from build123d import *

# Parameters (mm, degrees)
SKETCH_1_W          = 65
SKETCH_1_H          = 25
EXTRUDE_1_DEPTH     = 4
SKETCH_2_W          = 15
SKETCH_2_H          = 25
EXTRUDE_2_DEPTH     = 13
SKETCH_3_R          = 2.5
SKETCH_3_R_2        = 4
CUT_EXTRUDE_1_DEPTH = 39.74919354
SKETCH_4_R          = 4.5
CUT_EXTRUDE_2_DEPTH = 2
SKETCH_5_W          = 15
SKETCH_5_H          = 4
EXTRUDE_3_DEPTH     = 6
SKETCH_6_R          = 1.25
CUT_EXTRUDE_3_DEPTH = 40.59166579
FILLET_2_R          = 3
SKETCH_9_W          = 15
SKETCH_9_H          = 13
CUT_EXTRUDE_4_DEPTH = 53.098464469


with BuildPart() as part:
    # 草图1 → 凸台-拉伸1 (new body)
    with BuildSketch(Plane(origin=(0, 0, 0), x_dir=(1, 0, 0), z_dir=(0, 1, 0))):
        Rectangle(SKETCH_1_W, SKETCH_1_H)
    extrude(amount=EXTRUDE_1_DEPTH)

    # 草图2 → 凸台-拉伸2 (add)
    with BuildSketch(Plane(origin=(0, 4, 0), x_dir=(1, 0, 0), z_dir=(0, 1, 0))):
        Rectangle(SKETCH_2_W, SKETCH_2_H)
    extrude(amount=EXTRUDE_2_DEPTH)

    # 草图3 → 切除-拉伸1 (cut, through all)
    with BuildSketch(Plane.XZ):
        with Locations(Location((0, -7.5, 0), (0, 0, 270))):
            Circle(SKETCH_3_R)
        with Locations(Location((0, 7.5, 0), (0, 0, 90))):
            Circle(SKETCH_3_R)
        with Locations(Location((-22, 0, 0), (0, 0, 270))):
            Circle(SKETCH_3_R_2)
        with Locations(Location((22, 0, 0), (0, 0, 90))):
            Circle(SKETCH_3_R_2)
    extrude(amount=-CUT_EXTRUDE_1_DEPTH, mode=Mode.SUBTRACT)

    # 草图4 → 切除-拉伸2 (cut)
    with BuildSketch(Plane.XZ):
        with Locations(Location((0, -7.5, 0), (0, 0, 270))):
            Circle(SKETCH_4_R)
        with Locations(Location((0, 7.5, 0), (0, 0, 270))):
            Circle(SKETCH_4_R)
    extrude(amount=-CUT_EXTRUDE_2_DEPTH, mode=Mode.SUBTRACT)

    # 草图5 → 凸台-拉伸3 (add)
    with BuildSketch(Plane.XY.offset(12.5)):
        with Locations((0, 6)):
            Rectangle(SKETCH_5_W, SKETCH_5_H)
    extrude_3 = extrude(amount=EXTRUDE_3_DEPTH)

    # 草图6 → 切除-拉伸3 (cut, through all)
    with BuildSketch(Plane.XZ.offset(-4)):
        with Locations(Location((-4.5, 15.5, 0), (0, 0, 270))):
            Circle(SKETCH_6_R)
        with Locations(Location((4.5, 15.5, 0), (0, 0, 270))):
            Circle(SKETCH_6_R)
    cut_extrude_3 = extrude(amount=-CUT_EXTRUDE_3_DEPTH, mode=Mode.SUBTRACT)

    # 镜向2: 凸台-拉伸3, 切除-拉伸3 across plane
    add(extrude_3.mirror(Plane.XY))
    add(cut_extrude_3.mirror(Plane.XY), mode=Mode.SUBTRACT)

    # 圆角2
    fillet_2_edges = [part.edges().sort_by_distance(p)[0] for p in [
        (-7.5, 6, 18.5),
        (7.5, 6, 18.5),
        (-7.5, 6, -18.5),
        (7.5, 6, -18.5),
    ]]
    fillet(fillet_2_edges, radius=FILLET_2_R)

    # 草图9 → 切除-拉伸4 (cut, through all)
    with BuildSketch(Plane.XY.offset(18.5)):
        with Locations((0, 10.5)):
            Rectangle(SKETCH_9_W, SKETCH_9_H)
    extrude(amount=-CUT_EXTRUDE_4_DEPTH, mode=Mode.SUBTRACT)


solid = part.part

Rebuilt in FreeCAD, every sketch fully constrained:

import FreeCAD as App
import Part
import Sketcher

V = App.Vector
Q = App.Units.Quantity


def edges_at(feature, points):
    """Names of the edges that pass closest to the given points."""
    edges = feature.Shape.Edges
    near = lambda p: min(range(len(edges)), key=lambda i: edges[i].distToShape(Part.Vertex(*p))[0])
    return sorted({f"Edge{near(p) + 1}" for p in points})


def add_polygon(sketch, points):
    """Adds a closed chain of lines whose ends are joined by coincident constraints."""
    first, n = sketch.GeometryCount, len(points)
    for a, b in zip(points, points[1:] + points[:1]):
        sketch.addGeometry(Part.LineSegment(App.Vector(*a, 0), App.Vector(*b, 0)), False)
    for i in range(n):
        sketch.addConstraint(Sketcher.Constraint("Coincident", first + i, 2, first + (i + 1) % n, 1))

doc = App.newDocument("Part")
params = doc.addObject("Spreadsheet::Sheet", "Params")
for row, (alias, value) in enumerate([
    ("sketch1_width", "65 mm"),
    ("sketch1_height", "25 mm"),
    ("pad1_length", "4 mm"),
    ("sketch2_width", "15 mm"),
    ("sketch2_height", "25 mm"),
    ("pad2_length", "13 mm"),
    ("sketch3_diameter", "5 mm"),
    ("sketch3_diameter2", "8 mm"),
    ("sketch4_diameter", "9 mm"),
    ("pocket2_length", "2 mm"),
    ("sketch5_width", "15 mm"),
    ("sketch5_height", "4 mm"),
    ("pad3_length", "6 mm"),
    ("sketch6_diameter", "2.5 mm"),
    ("fillet_radius", "3 mm"),
    ("sketch7_width", "15 mm"),
    ("sketch7_height", "13 mm"),
], start=1):
    params.set(f"A{row}", alias)
    params.set(f"B{row}", "=" + value)
    params.setAlias(f"B{row}", alias)

body = doc.addObject("PartDesign::Body", "Body")

# Sketch on XZ plane
sketch1 = doc.addObject("Sketcher::SketchObject", "Sketch")
body.addObject(sketch1)
sketch1.AttachmentSupport = (doc.XZ_Plane, [""])
sketch1.MapMode = "FlatFace"
add_polygon(sketch1, [(-32, -12), (-32, 12), (32, 12), (32, -12)])  # lines 0-3
sketch1.addConstraint([
    Sketcher.Constraint("Vertical", 0),
    Sketcher.Constraint("Horizontal", 1),
    Sketcher.Constraint("Vertical", 2),
    Sketcher.Constraint("Horizontal", 3),
    Sketcher.Constraint("Symmetric", 0, 2, 2, 2, -1, 1),
    Sketcher.Constraint("DistanceX", 1, 1, 1, 2, Q("65 mm")),
    Sketcher.Constraint("DistanceY", 0, 1, 0, 2, Q("25 mm")),
])
sketch1.setExpression("Constraints[9]", "Params.sketch1_width")
sketch1.setExpression("Constraints[10]", "Params.sketch1_height")
pad1 = doc.addObject("PartDesign::Pad", "Pad")
body.addObject(pad1)
pad1.Profile = sketch1
pad1.setExpression("Length", "Params.pad1_length")
pad1.Reversed = True

# Sketch on XZ plane
sketch2 = doc.addObject("Sketcher::SketchObject", "Sketch001")
body.addObject(sketch2)
sketch2.AttachmentSupport = (doc.XZ_Plane, [""])
sketch2.MapMode = "FlatFace"
sketch2.AttachmentOffset = App.Placement(V(0, 0, -4), App.Rotation())
add_polygon(sketch2, [(-8, -12), (-8, 12), (8, 12), (8, -12)])  # lines 0-3
sketch2.addConstraint([
    Sketcher.Constraint("Vertical", 0),
    Sketcher.Constraint("Horizontal", 1),
    Sketcher.Constraint("Vertical", 2),
    Sketcher.Constraint("Horizontal", 3),
    Sketcher.Constraint("Symmetric", 0, 2, 2, 2, -1, 1),
    Sketcher.Constraint("DistanceX", 1, 1, 1, 2, Q("15 mm")),
    Sketcher.Constraint("DistanceY", 0, 1, 0, 2, Q("25 mm")),
])
sketch2.setExpression("Constraints[9]", "Params.sketch2_width")
sketch2.setExpression("Constraints[10]", "Params.sketch2_height")
pad2 = doc.addObject("PartDesign::Pad", "Pad001")
body.addObject(pad2)
pad2.Profile = sketch2
pad2.setExpression("Length", "Params.pad2_length")
pad2.Reversed = True

# Sketch on XZ plane
sketch3 = doc.addObject("Sketcher::SketchObject", "Sketch002")
body.addObject(sketch3)
sketch3.AttachmentSupport = (doc.XZ_Plane, [""])
sketch3.MapMode = "FlatFace"
sketch3.addGeometry([
    Part.Circle(V(0, -7.5, 0), V(0, 0, 1), 2.5),
    Part.Circle(V(0, 7.5, 0), V(0, 0, 1), 2.5),
    Part.Circle(V(-22, 0, 0), V(0, 0, 1), 4),
    Part.Circle(V(22, 0, 0), V(0, 0, 1), 4),
], False)
sketch3.addConstraint([
    Sketcher.Constraint("Equal", 0, 1),
    Sketcher.Constraint("Equal", 2, 3),
    Sketcher.Constraint("Symmetric", 0, 3, 1, 3, -1, 1),
    Sketcher.Constraint("Symmetric", 2, 3, 3, 3, -1, 1),
    Sketcher.Constraint("PointOnObject", 0, 3, -2),
    Sketcher.Constraint("PointOnObject", 2, 3, -1),
    Sketcher.Constraint("Diameter", 0, Q("5 mm")),
    Sketcher.Constraint("Diameter", 2, Q("8 mm")),
    Sketcher.Constraint("DistanceX", 2, 3, -1, 1, Q("22 mm")),
    Sketcher.Constraint("DistanceY", 0, 3, 1, 3, Q("15 mm")),
])
sketch3.setExpression("Constraints[6]", "Params.sketch3_diameter")
sketch3.setExpression("Constraints[7]", "Params.sketch3_diameter2")
pocket1 = doc.addObject("PartDesign::Pocket", "Pocket")
body.addObject(pocket1)
pocket1.Profile = sketch3
pocket1.Type = "ThroughAll"

# Sketch on XZ plane
sketch4 = doc.addObject("Sketcher::SketchObject", "Sketch003")
body.addObject(sketch4)
sketch4.AttachmentSupport = (doc.XZ_Plane, [""])
sketch4.MapMode = "FlatFace"
sketch4.addGeometry([
    Part.Circle(V(0, -7.5, 0), V(0, 0, 1), 4.5),
    Part.Circle(V(0, 7.5, 0), V(0, 0, 1), 4.5),
], False)
sketch4.addConstraint([
    Sketcher.Constraint("Equal", 0, 1),
    Sketcher.Constraint("Symmetric", 0, 3, 1, 3, -1, 1),
    Sketcher.Constraint("PointOnObject", 0, 3, -2),
    Sketcher.Constraint("Diameter", 0, Q("9 mm")),
    Sketcher.Constraint("DistanceY", 0, 3, 1, 3, Q("15 mm")),
])
sketch4.setExpression("Constraints[3]", "Params.sketch4_diameter")
pocket2 = doc.addObject("PartDesign::Pocket", "Pocket001")
body.addObject(pocket2)
pocket2.Profile = sketch4
pocket2.setExpression("Length", "Params.pocket2_length")

# Sketch on XY plane
sketch5 = doc.addObject("Sketcher::SketchObject", "Sketch004")
body.addObject(sketch5)
sketch5.AttachmentSupport = (doc.XY_Plane, [""])
sketch5.MapMode = "FlatFace"
sketch5.AttachmentOffset = App.Placement(V(0, 0, 12.5), App.Rotation())
add_polygon(sketch5, [(-7.5, 8), (-7.5, 4), (7.5, 4), (7.5, 8)])  # lines 0-3
sketch5.addConstraint([
    Sketcher.Constraint("Vertical", 0),
    Sketcher.Constraint("Horizontal", 1),
    Sketcher.Constraint("Vertical", 2),
    Sketcher.Constraint("Horizontal", 3),
    Sketcher.Constraint("DistanceX", 1, 1, 1, 2, Q("15 mm")),
    Sketcher.Constraint("DistanceY", 0, 2, 0, 1, Q("4 mm")),
    Sketcher.Constraint("DistanceY", -1, 1, 0, 2, Q("4 mm")),
    Sketcher.Constraint("DistanceX", 0, 2, -1, 1, Q("7.5 mm")),
])
sketch5.setExpression("Constraints[8]", "Params.sketch5_width")
sketch5.setExpression("Constraints[9]", "Params.sketch5_height")
pad3 = doc.addObject("PartDesign::Pad", "Pad002")
body.addObject(pad3)
pad3.Profile = sketch5
pad3.setExpression("Length", "Params.pad3_length")

# Sketch on XZ plane
sketch6 = doc.addObject("Sketcher::SketchObject", "Sketch005")
body.addObject(sketch6)
sketch6.AttachmentSupport = (doc.XZ_Plane, [""])
sketch6.MapMode = "FlatFace"
sketch6.AttachmentOffset = App.Placement(V(0, 0, -4), App.Rotation())
sketch6.addGeometry([
    Part.Circle(V(-4.5, 15.5, 0), V(0, 0, 1), 1.2),
    Part.Circle(V(4.5, 15.5, 0), V(0, 0, 1), 1.2),
], False)
sketch6.addConstraint([
    Sketcher.Constraint("Equal", 0, 1),
    Sketcher.Constraint("Symmetric", 0, 3, 1, 3, -2),
    Sketcher.Constraint("Diameter", 0, Q("2.5 mm")),
    Sketcher.Constraint("DistanceX", 0, 3, 1, 3, Q("9 mm")),
    Sketcher.Constraint("DistanceY", -1, 1, 0, 3, Q("15.5 mm")),
])
sketch6.setExpression("Constraints[2]", "Params.sketch6_diameter")
pocket3 = doc.addObject("PartDesign::Pocket", "Pocket002")
body.addObject(pocket3)
pocket3.Profile = sketch6
pocket3.Type = "ThroughAll"
doc.recompute()

mirrored = doc.addObject("PartDesign::Mirrored", "Mirrored")
body.addObject(mirrored)
mirrored.Originals = [pad3, pocket3]
mirrored.MirrorPlane = (doc.XY_Plane, [""])
body.Tip = mirrored
doc.recompute()

fillet = doc.addObject("PartDesign::Fillet", "Fillet")
body.addObject(fillet)
fillet.Base = (mirrored, edges_at(mirrored, [
    (-7.5, 6, 18.5),
    (7.5, 6, 18.5),
    (-7.5, 6, -18.5),
    (7.5, 6, -18.5),
]))
fillet.setExpression("Radius", "Params.fillet_radius")

# Sketch on XY plane
sketch7 = doc.addObject("Sketcher::SketchObject", "Sketch006")
body.addObject(sketch7)
sketch7.AttachmentSupport = (doc.XY_Plane, [""])
sketch7.MapMode = "FlatFace"
sketch7.AttachmentOffset = App.Placement(V(0, 0, 18.5), App.Rotation())
add_polygon(sketch7, [(-8, 17), (-8, 4), (8, 4), (8, 17)])  # lines 0-3
sketch7.addConstraint([
    Sketcher.Constraint("Vertical", 0),
    Sketcher.Constraint("Horizontal", 1),
    Sketcher.Constraint("Vertical", 2),
    Sketcher.Constraint("Horizontal", 3),
    Sketcher.Constraint("DistanceX", 1, 1, 1, 2, Q("15 mm")),
    Sketcher.Constraint("DistanceY", 0, 2, 0, 1, Q("13 mm")),
    Sketcher.Constraint("DistanceY", -1, 1, 0, 2, Q("4 mm")),
    Sketcher.Constraint("DistanceX", 0, 2, -1, 1, Q("7.5 mm")),
])
sketch7.setExpression("Constraints[8]", "Params.sketch7_width")
sketch7.setExpression("Constraints[9]", "Params.sketch7_height")
pocket4 = doc.addObject("PartDesign::Pocket", "Pocket003")
body.addObject(pocket4)
pocket4.Profile = sketch7
pocket4.Type = "ThroughAll"

doc.recompute()
